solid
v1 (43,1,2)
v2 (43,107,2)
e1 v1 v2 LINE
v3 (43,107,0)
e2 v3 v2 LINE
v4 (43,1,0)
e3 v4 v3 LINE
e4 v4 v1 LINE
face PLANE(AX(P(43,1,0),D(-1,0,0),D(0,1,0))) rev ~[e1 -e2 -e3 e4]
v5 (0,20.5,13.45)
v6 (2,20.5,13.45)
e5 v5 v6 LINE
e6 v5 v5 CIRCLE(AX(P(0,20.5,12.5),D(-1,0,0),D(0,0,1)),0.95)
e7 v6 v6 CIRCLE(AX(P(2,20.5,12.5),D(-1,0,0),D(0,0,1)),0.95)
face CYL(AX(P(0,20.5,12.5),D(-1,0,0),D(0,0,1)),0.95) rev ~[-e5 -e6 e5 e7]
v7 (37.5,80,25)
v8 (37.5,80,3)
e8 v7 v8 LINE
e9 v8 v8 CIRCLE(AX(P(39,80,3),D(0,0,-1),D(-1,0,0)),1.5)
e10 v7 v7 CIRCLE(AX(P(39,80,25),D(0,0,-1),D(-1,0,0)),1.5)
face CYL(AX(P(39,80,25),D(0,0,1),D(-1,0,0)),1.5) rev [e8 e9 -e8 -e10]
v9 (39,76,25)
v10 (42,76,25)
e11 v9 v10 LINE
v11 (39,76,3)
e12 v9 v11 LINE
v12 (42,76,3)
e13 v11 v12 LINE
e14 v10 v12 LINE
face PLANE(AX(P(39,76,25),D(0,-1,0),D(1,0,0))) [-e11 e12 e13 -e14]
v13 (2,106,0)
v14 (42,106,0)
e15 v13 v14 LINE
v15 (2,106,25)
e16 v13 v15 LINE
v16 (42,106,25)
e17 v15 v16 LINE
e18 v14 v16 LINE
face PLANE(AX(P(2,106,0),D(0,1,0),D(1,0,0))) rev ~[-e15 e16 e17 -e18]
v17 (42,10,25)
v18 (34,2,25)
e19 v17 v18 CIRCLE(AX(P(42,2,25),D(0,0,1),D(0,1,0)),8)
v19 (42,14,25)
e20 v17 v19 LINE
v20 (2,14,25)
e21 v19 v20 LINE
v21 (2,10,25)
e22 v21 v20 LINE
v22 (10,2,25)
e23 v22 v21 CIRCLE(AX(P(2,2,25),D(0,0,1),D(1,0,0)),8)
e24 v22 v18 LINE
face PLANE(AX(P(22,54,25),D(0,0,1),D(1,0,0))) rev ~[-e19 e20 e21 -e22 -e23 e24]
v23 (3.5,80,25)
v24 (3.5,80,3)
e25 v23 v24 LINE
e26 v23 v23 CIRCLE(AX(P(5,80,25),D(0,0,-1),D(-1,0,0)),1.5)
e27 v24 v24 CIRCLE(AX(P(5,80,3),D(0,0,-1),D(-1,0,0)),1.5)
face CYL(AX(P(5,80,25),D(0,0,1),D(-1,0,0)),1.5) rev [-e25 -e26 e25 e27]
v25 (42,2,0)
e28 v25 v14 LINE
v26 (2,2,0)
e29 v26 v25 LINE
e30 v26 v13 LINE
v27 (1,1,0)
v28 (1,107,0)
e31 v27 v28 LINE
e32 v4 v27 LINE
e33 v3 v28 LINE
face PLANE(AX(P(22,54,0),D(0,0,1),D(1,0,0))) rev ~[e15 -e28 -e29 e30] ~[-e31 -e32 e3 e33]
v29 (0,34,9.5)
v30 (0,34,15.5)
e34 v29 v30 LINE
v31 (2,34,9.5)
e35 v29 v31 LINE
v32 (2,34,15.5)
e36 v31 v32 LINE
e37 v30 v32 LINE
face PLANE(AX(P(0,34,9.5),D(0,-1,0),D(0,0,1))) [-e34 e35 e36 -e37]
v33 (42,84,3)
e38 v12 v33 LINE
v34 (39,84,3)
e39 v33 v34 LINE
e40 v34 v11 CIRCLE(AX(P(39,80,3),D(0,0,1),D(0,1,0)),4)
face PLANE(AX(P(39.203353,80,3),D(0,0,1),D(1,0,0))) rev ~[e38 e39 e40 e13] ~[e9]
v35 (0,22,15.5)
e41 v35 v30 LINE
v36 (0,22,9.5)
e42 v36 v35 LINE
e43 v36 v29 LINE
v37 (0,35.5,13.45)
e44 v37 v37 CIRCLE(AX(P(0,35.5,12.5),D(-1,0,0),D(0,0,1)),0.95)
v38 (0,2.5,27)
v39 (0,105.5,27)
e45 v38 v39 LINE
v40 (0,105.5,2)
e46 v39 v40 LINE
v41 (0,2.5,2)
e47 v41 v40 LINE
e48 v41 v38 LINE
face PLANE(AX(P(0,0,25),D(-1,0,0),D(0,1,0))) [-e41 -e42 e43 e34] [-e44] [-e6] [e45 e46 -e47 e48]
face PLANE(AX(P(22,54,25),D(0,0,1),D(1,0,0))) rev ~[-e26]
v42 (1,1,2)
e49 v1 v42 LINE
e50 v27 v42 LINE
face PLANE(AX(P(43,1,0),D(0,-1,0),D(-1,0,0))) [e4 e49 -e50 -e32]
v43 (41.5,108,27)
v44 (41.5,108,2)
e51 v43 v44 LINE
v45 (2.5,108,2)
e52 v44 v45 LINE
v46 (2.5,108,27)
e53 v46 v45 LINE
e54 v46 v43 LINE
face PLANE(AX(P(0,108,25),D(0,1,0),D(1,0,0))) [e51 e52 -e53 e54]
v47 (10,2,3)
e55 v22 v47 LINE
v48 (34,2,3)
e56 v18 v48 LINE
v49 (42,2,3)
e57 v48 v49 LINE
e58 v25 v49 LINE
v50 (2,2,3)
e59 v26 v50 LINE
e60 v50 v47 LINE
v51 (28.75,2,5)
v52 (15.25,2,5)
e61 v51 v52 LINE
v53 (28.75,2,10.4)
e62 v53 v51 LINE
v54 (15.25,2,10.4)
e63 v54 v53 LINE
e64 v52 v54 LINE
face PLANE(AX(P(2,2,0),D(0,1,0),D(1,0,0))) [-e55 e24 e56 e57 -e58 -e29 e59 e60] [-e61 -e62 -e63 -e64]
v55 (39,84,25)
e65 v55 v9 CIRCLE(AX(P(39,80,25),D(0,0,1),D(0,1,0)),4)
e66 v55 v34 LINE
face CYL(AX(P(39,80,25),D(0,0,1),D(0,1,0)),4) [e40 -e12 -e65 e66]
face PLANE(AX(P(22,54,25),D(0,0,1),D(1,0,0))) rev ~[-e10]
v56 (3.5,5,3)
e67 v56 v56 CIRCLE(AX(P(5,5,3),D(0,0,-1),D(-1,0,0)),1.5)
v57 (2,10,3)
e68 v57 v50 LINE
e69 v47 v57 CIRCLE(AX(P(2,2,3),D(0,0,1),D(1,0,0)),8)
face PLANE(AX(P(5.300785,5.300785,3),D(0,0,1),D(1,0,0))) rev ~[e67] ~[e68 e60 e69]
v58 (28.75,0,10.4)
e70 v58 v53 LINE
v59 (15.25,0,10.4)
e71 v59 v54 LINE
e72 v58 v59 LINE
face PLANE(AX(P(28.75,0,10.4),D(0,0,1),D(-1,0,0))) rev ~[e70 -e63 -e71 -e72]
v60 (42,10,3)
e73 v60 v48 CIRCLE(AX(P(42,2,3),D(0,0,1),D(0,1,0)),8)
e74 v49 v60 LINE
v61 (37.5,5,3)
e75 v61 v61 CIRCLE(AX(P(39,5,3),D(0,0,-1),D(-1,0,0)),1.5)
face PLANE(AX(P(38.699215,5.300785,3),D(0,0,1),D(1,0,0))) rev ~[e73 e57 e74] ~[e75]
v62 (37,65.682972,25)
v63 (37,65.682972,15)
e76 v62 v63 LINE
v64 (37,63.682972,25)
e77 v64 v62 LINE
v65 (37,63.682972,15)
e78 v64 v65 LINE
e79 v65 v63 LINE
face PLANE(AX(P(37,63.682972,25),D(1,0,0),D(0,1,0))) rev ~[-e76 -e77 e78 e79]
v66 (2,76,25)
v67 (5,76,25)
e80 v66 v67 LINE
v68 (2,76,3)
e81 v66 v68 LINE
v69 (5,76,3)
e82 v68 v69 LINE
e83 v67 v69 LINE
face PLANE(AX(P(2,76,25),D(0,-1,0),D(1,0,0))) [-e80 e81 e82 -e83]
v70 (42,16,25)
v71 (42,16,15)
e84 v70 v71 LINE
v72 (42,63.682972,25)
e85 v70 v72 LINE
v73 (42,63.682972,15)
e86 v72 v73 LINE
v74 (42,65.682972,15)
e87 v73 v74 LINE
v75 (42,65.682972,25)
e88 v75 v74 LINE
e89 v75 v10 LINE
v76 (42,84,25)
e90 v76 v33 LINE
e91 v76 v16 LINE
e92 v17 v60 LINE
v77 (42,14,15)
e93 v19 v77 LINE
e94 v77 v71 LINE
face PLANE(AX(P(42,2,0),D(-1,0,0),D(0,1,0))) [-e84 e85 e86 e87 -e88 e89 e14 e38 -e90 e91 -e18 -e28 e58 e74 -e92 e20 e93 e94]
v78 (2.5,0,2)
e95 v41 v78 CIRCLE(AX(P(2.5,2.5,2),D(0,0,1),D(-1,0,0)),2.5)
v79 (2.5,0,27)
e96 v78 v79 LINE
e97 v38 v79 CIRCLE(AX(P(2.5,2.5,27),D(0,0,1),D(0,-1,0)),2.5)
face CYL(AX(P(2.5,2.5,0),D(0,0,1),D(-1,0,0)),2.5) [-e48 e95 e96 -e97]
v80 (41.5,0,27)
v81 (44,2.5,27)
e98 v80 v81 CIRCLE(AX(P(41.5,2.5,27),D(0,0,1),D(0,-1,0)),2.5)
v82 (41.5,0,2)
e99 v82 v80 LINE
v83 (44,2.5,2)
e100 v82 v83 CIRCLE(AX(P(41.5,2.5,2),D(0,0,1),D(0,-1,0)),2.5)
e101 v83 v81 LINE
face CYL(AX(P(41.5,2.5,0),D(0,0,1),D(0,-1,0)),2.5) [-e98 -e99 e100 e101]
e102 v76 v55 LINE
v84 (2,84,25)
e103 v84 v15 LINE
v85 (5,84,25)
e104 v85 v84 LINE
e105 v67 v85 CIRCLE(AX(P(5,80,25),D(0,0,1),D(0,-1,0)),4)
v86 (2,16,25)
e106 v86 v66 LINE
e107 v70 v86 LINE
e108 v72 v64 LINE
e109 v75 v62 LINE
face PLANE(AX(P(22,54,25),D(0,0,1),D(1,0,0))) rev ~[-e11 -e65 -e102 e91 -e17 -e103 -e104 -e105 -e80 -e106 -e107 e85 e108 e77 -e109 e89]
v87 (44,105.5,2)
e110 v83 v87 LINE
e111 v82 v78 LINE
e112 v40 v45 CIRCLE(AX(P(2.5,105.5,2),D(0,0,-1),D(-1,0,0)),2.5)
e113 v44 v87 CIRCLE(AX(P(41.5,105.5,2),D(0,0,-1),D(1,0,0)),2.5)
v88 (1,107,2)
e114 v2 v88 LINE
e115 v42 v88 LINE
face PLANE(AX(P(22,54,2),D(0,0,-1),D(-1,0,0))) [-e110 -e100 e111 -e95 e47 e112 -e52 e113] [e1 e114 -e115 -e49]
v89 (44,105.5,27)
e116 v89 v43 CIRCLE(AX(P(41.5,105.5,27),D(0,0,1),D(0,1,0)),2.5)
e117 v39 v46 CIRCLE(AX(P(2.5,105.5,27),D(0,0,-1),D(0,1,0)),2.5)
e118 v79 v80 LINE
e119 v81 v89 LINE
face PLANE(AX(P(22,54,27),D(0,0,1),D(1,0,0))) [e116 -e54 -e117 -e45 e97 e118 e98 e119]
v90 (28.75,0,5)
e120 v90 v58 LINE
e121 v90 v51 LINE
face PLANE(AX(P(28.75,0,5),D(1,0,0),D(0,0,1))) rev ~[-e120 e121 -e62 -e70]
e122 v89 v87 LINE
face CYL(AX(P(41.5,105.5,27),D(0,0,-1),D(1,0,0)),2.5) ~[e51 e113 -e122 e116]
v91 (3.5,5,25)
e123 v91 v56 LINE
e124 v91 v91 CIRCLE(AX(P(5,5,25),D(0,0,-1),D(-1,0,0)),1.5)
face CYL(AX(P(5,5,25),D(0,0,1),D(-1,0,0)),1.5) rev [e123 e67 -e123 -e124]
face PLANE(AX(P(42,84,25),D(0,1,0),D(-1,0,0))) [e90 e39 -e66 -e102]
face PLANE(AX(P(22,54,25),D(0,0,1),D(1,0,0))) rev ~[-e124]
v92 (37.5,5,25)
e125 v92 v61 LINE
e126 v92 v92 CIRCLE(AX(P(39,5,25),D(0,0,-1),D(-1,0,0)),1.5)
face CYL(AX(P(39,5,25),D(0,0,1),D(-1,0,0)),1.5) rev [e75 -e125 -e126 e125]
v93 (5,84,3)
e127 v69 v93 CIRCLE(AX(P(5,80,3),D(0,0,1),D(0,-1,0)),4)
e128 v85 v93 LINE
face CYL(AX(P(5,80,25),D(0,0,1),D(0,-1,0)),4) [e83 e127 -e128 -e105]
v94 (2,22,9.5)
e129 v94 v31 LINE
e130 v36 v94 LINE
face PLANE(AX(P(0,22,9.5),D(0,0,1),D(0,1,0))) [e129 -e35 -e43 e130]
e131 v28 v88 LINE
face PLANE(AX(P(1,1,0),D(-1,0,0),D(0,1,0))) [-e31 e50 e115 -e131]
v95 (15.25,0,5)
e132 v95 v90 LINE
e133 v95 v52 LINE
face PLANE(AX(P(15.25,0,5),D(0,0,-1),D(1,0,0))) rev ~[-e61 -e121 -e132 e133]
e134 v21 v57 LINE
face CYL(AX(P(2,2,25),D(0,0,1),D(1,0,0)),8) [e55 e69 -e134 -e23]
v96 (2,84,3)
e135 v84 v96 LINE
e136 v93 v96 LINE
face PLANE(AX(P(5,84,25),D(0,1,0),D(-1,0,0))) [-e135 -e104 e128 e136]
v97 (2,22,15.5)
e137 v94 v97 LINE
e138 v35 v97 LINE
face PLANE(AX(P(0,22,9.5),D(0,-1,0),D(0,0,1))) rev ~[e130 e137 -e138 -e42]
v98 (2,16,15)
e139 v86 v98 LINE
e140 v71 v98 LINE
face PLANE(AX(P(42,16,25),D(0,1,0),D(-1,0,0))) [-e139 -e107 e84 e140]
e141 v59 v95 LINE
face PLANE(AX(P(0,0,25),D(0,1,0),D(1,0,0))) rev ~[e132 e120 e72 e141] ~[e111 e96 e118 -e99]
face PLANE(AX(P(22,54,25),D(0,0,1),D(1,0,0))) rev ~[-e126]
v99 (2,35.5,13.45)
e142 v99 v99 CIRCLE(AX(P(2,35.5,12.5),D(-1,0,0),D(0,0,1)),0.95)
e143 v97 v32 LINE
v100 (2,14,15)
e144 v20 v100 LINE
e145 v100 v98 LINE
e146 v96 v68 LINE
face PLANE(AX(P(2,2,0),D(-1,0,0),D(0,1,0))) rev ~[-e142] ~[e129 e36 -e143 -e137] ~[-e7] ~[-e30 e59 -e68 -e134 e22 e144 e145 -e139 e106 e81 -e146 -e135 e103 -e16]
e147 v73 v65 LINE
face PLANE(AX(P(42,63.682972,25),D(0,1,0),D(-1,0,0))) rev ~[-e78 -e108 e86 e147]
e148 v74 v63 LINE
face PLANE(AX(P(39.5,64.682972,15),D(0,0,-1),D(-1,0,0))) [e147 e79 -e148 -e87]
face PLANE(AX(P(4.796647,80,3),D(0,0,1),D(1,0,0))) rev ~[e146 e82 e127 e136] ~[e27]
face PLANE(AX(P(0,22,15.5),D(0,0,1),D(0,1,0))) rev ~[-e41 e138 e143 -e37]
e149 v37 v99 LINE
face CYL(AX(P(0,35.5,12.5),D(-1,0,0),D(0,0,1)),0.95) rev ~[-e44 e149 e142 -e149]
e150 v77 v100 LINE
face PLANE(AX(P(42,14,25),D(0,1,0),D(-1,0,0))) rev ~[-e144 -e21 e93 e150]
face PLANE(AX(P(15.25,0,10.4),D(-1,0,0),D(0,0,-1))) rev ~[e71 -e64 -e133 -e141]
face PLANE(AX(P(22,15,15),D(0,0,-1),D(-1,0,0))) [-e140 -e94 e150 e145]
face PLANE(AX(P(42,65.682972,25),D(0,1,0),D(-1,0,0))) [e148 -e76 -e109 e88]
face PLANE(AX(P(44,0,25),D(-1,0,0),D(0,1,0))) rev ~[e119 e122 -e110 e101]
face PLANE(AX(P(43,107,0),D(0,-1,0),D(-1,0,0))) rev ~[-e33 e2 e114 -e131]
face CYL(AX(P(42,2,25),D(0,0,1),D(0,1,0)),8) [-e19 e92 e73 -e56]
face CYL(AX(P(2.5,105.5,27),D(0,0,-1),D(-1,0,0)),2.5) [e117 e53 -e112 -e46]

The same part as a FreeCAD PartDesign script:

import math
import FreeCAD as App
import Part
import Sketcher
Q = App.Units.Quantity


def edges_at(feature, points):
    """Names of the edges that pass closest to the given points."""
    edges = feature.Shape.Edges
    near = lambda p: min(range(len(edges)), key=lambda i: edges[i].distToShape(Part.Vertex(*p))[0])
    return sorted({f"Edge{near(p) + 1}" for p in points})


def add_polygon(sketch, points):
    """Adds a closed chain of lines whose ends are joined by coincident constraints."""
    first, n = sketch.GeometryCount, len(points)
    for a, b in zip(points, points[1:] + points[:1]):
        sketch.addGeometry(Part.LineSegment(App.Vector(*a, 0), App.Vector(*b, 0)), False)
    for i in range(n):
        sketch.addConstraint(Sketcher.Constraint("Coincident", first + i, 2, first + (i + 1) % n, 1))

doc = App.newDocument("Part")
body = doc.addObject("PartDesign::Body", "Body")

# Sketch on XY plane
sketch1 = body.newObject("Sketcher::SketchObject", "Sketch")
sketch1.AttachmentSupport = (doc.getObject("XY_Plane"), [""])
sketch1.MapMode = "FlatFace"
add_polygon(sketch1, [(0, 108), (0, 0), (44, 0), (44, 108)])  # lines 0-3
add_polygon(sketch1, [(42, 2), (2, 2), (2, 106), (42, 106)])  # lines 4-7
sketch1.addConstraint([
    Sketcher.Constraint("Vertical", 0),
    Sketcher.Constraint("Horizontal", 1),
    Sketcher.Constraint("Vertical", 2),
    Sketcher.Constraint("Horizontal", 3),
    Sketcher.Constraint("Horizontal", 4),
    Sketcher.Constraint("Vertical", 5),
    Sketcher.Constraint("Horizontal", 6),
    Sketcher.Constraint("Vertical", 7),
    Sketcher.Constraint("Coincident", 0, 2, -1, 1),
    Sketcher.Constraint("DistanceX", 1, 1, 1, 2, Q("44 mm")),
    Sketcher.Constraint("DistanceX", 4, 2, 4, 1, Q("40 mm")),
    Sketcher.Constraint("DistanceY", 0, 2, 0, 1, Q("108 mm")),
    Sketcher.Constraint("DistanceY", 5, 1, 5, 2, Q("104 mm")),
    Sketcher.Constraint("DistanceX", -1, 1, 4, 2, Q("2 mm")),
    Sketcher.Constraint("DistanceY", -1, 1, 4, 2, Q("2 mm")),
])
pad1 = body.newObject("PartDesign::Pad", "Pad")
pad1.Profile = sketch1
pad1.Length = 25

# Sketch on XY plane
sketch2 = body.newObject("Sketcher::SketchObject", "Sketch001")
sketch2.AttachmentSupport = (doc.getObject("XY_Plane"), [""])
sketch2.MapMode = "FlatFace"
sketch2.AttachmentOffset = App.Placement(App.Vector(0, 0, 25), App.Rotation())
add_polygon(sketch2, [(0, 108), (0, 0), (44, 0), (44, 108)])  # lines 0-3
sketch2.addConstraint([
    Sketcher.Constraint("Vertical", 0),
    Sketcher.Constraint("Horizontal", 1),
    Sketcher.Constraint("Vertical", 2),
    Sketcher.Constraint("Horizontal", 3),
    Sketcher.Constraint("Coincident", 0, 2, -1, 1),
    Sketcher.Constraint("DistanceX", 1, 1, 1, 2, Q("44 mm")),
    Sketcher.Constraint("DistanceY", 0, 2, 0, 1, Q("108 mm")),
])
pad2 = body.newObject("PartDesign::Pad", "Pad001")
pad2.Profile = sketch2
pad2.Length = 2
doc.recompute()

fillet = body.newObject("PartDesign::Fillet", "Fillet")
fillet.Base = (pad2, edges_at(pad2, [
    (0, 108, 13.5),
    (44, 108, 13.5),
    (44, 0, 13.5),
    (0, 0, 13.5),
]))
fillet.Radius = 2.5

# Sketch on XY plane
sketch3 = body.newObject("Sketcher::SketchObject", "Sketch002")
sketch3.AttachmentSupport = (doc.getObject("XY_Plane"), [""])
sketch3.MapMode = "FlatFace"
add_polygon(sketch3, [(44, 108), (44, 0), (0, 0), (0, 108)])  # lines 0-3
add_polygon(sketch3, [(1, 1), (43, 1), (43, 107), (1, 107)])  # lines 4-7
sketch3.addConstraint([
    Sketcher.Constraint("Vertical", 0),
    Sketcher.Constraint("Horizontal", 1),
    Sketcher.Constraint("Vertical", 2),
    Sketcher.Constraint("Horizontal", 3),
    Sketcher.Constraint("Horizontal", 4),
    Sketcher.Constraint("Vertical", 5),
    Sketcher.Constraint("Horizontal", 6),
    Sketcher.Constraint("Vertical", 7),
    Sketcher.Constraint("Coincident", 1, 2, -1, 1),
    Sketcher.Constraint("DistanceX", 1, 2, 1, 1, Q("44 mm")),
    Sketcher.Constraint("DistanceX", 4, 1, 4, 2, Q("42 mm")),
    Sketcher.Constraint("DistanceY", 0, 2, 0, 1, Q("108 mm")),
    Sketcher.Constraint("DistanceY", 5, 1, 5, 2, Q("106 mm")),
    Sketcher.Constraint("DistanceX", -1, 1, 4, 2, Q("43 mm")),
    Sketcher.Constraint("DistanceY", -1, 1, 4, 2, Q("1 mm")),
])
pocket1 = body.newObject("PartDesign::Pocket", "Pocket")
pocket1.Profile = sketch3
pocket1.Length = 2
pocket1.Reversed = True

# Sketch on XY plane
sketch4 = body.newObject("Sketcher::SketchObject", "Sketch003")
sketch4.AttachmentSupport = (doc.getObject("XY_Plane"), [""])
sketch4.MapMode = "FlatFace"
sketch4.AttachmentOffset = App.Placement(App.Vector(0, 0, 25), App.Rotation())
sketch4.addGeometry([
    Part.LineSegment(App.Vector(42, 10, 0), App.Vector(42, 2, 0)),  # 0
    Part.LineSegment(App.Vector(42, 2, 0), App.Vector(34, 2, 0)),  # 1
    Part.ArcOfCircle(Part.Circle(App.Vector(42, 2, 0), App.Vector(0, 0, 1), 8), math.radians(90), math.radians(180)),  # 2
    Part.Circle(App.Vector(39, 5, 0), App.Vector(0, 0, 1), 1.5),  # 3
    Part.LineSegment(App.Vector(10, 2, 0), App.Vector(2, 2, 0)),  # 4
    Part.LineSegment(App.Vector(2, 2, 0), App.Vector(2, 10, 0)),  # 5
    Part.ArcOfCircle(Part.Circle(App.Vector(2, 2, 0), App.Vector(0, 0, 1), 8), math.radians(0), math.radians(90)),  # 6
    Part.Circle(App.Vector(5, 5, 0), App.Vector(0, 0, 1), 1.5),  # 7
    Part.LineSegment(App.Vector(5, 76, 0), App.Vector(2, 76, 0)),  # 8
    Part.LineSegment(App.Vector(2, 76, 0), App.Vector(2, 84, 0)),  # 9
    Part.LineSegment(App.Vector(2, 84, 0), App.Vector(5, 84, 0)),  # 10
    Part.ArcOfCircle(Part.Circle(App.Vector(5, 80, 0), App.Vector(0, 0, 1), 4), math.radians(-90), math.radians(90)),  # 11
    Part.Circle(App.Vector(5, 80, 0), App.Vector(0, 0, 1), 1.5),  # 12
    Part.LineSegment(App.Vector(39, 84, 0), App.Vector(42, 84, 0)),  # 13
    Part.LineSegment(App.Vector(42, 84, 0), App.Vector(42, 76, 0)),  # 14
    Part.LineSegment(App.Vector(42, 76, 0), App.Vector(39, 76, 0)),  # 15
    Part.ArcOfCircle(Part.Circle(App.Vector(39, 80, 0), App.Vector(0, 0, 1), 4), math.radians(90), math.radians(270)),  # 16
    Part.Circle(App.Vector(39, 80, 0), App.Vector(0, 0, 1), 1.5),  # 17
], False)
sketch4.addConstraint([
    Sketcher.Constraint("Coincident", 0, 2, 1, 1),
    Sketcher.Constraint("Coincident", 1, 2, 2, 2),
    Sketcher.Constraint("Coincident", 2, 1, 0, 1),
    Sketcher.Constraint("Coincident", 4, 2, 5, 1),
    Sketcher.Constraint("Coincident", 5, 2, 6, 2),
    Sketcher.Constraint("Coincident", 6, 1, 4, 1),
    Sketcher.Constraint("Coincident", 8, 2, 9, 1),
    Sketcher.Constraint("Coincident", 9, 2, 10, 1),
    Sketcher.Constraint("Tangent", 10, 2, 11, 2),
    Sketcher.Constraint("Tangent", 11, 1, 8, 1),
    Sketcher.Constraint("Coincident", 13, 2, 14, 1),
    Sketcher.Constraint("Coincident", 14, 2, 15, 1),
    Sketcher.Constraint("Tangent", 15, 2, 16, 2),
    Sketcher.Constraint("Tangent", 16, 1, 13, 1),
    Sketcher.Constraint("Vertical", 0),
    Sketcher.Constraint("Horizontal", 1),
    Sketcher.Constraint("Horizontal", 4),
    Sketcher.Constraint("Vertical", 5),
    Sketcher.Constraint("Horizontal", 8),
    Sketcher.Constraint("Vertical", 9),
    Sketcher.Constraint("Horizontal", 10),
    Sketcher.Constraint("Horizontal", 13),
    Sketcher.Constraint("Vertical", 14),
    Sketcher.Constraint("Horizontal", 15),
    Sketcher.Constraint("Coincident", 12, 3, 11, 3),
    Sketcher.Constraint("Coincident", 17, 3, 16, 3),
    Sketcher.Constraint("Coincident", 0, 2, 2, 3),
    Sketcher.Constraint("Coincident", 4, 2, 6, 3),
    Sketcher.Constraint("Equal", 2, 6),
    Sketcher.Constraint("Equal", 3, 7),
    Sketcher.Constraint("Equal", 7, 12),
    Sketcher.Constraint("Equal", 11, 16),
    Sketcher.Constraint("Equal", 12, 17),
    Sketcher.Constraint("Horizontal", 2, 3, 6, 3),
    Sketcher.Constraint("Horizontal", 3, 3, 7, 3),
    Sketcher.Constraint("Horizontal", 12, 3, 16, 3),
    Sketcher.Constraint("Vertical", 7, 3, 11, 3),
    Sketcher.Constraint("Vertical", 3, 3, 16, 3),
    Sketcher.Constraint("Vertical", 5, 2, 8, 2),
    Sketcher.Constraint("Vertical", 2, 1, 13, 2),
    Sketcher.Constraint("Equal", 10, 13),
    Sketcher.Constraint("Equal", 5, 9),
    Sketcher.Constraint("Diameter", 3, Q("3 mm")),
    Sketcher.Constraint("Radius", 2, Q("8 mm")),
    Sketcher.Constraint("DistanceX", 8, 2, 8, 1, Q("3 mm")),
    Sketcher.Constraint("DistanceX", -1, 1, 2, 3, Q("42 mm")),
    Sketcher.Constraint("DistanceY", -1, 1, 2, 3, Q("2 mm")),
    Sketcher.Constraint("DistanceY", -1, 1, 3, 3, Q("5 mm")),
    Sketcher.Constraint("DistanceX", -1, 1, 6, 3, Q("2 mm")),
    Sketcher.Constraint("DistanceY", -1, 1, 11, 3, Q("80 mm")),
])
pad3 = body.newObject("PartDesign::Pad", "Pad002")
pad3.Profile = sketch4
pad3.Length = 22
pad3.Reversed = True

# Sketch on XZ plane
sketch5 = body.newObject("Sketcher::SketchObject", "Sketch004")
sketch5.AttachmentSupport = (doc.getObject("XZ_Plane"), [""])
sketch5.MapMode = "FlatFace"
add_polygon(sketch5, [(15, 10), (15, 5), (29, 5), (29, 10)])  # lines 0-3
sketch5.addConstraint([
    Sketcher.Constraint("Vertical", 0),
    Sketcher.Constraint("Horizontal", 1),
    Sketcher.Constraint("Vertical", 2),
    Sketcher.Constraint("Horizontal", 3),
    Sketcher.Constraint("DistanceX", 1, 1, 1, 2, Q("13.5 mm")),
    Sketcher.Constraint("DistanceY", 0, 2, 0, 1, Q("5.4 mm")),
    Sketcher.Constraint("DistanceY", -1, 1, 0, 2, Q("5 mm")),
    Sketcher.Constraint("DistanceX", -1, 1, 0, 2, Q("15.25 mm")),
])
pocket2 = body.newObject("PartDesign::Pocket", "Pocket001")
pocket2.Profile = sketch5
pocket2.Length = 10

# Sketch on XY plane
sketch6 = body.newObject("Sketcher::SketchObject", "Sketch005")
sketch6.AttachmentSupport = (doc.getObject("XY_Plane"), [""])
sketch6.MapMode = "FlatFace"
sketch6.AttachmentOffset = App.Placement(App.Vector(0, 0, 25), App.Rotation())
add_polygon(sketch6, [(42, 16), (42, 14), (2, 14), (2, 16)])  # lines 0-3
add_polygon(sketch6, [(42, 65.7), (42, 63.7), (37, 63.7), (37, 65.7)])  # lines 4-7
sketch6.addConstraint([
    Sketcher.Constraint("Vertical", 0),
    Sketcher.Constraint("Horizontal", 1),
    Sketcher.Constraint("Vertical", 2),
    Sketcher.Constraint("Horizontal", 3),
    Sketcher.Constraint("Vertical", 4),
    Sketcher.Constraint("Horizontal", 5),
    Sketcher.Constraint("Vertical", 6),
    Sketcher.Constraint("Horizontal", 7),
    Sketcher.Constraint("Vertical", 3, 2, 4, 2),
    Sketcher.Constraint("Equal", 2, 4),
    Sketcher.Constraint("DistanceX", 1, 2, 1, 1, Q("40 mm")),
    Sketcher.Constraint("DistanceX", 5, 2, 5, 1, Q("5 mm")),
    Sketcher.Constraint("DistanceY", 0, 2, 0, 1, Q("2 mm")),
    Sketcher.Constraint("DistanceX", -1, 1, 0, 2, Q("42 mm")),
    Sketcher.Constraint("DistanceY", -1, 1, 0, 2, Q("14 mm")),
    Sketcher.Constraint("DistanceY", -1, 1, 4, 2, Q("63.682972 mm")),
])
pad4 = body.newObject("PartDesign::Pad", "Pad003")
pad4.Profile = sketch6
pad4.Length = 10
pad4.Reversed = True

# Sketch on YZ plane
sketch7 = body.newObject("Sketcher::SketchObject", "Sketch006")
sketch7.AttachmentSupport = (doc.getObject("YZ_Plane"), [""])
sketch7.MapMode = "FlatFace"
sketch7.addGeometry(Part.Circle(App.Vector(35.5, 12.5, 0), App.Vector(0, 0, 1), 0.9), False)  # 0
sketch7.addGeometry(Part.Circle(App.Vector(20.5, 12.5, 0), App.Vector(0, 0, 1), 0.9), False)  # 1
add_polygon(sketch7, [(34, 9.5), (22, 9.5), (22, 15.5), (34, 15.5)])  # lines 2-5
sketch7.addConstraint([
    Sketcher.Constraint("Horizontal", 2),
    Sketcher.Constraint("Vertical", 3),
    Sketcher.Constraint("Horizontal", 4),
    Sketcher.Constraint("Vertical", 5),
    Sketcher.Constraint("Equal", 0, 1),
    Sketcher.Constraint("Horizontal", 0, 3, 1, 3),
    Sketcher.Constraint("Diameter", 0, Q("1.9 mm")),
    Sketcher.Constraint("DistanceX", 2, 2, 2, 1, Q("12 mm")),
    Sketcher.Constraint("DistanceY", 3, 1, 3, 2, Q("6 mm")),
    Sketcher.Constraint("DistanceX", -1, 1, 2, 2, Q("22 mm")),
    Sketcher.Constraint("DistanceX", 1, 3, 0, 3, Q("15 mm")),
    Sketcher.Constraint("DistanceY", 2, 2, 1, 3, Q("3 mm")),
    Sketcher.Constraint("DistanceX", -1, 1, 0, 3, Q("35.5 mm")),
    Sketcher.Constraint("DistanceY", -1, 1, 0, 3, Q("12.5 mm")),
])
pocket3 = body.newObject("PartDesign::Pocket", "Pocket002")
pocket3.Profile = sketch7
pocket3.Length = 10
pocket3.Reversed = True

doc.recompute()
